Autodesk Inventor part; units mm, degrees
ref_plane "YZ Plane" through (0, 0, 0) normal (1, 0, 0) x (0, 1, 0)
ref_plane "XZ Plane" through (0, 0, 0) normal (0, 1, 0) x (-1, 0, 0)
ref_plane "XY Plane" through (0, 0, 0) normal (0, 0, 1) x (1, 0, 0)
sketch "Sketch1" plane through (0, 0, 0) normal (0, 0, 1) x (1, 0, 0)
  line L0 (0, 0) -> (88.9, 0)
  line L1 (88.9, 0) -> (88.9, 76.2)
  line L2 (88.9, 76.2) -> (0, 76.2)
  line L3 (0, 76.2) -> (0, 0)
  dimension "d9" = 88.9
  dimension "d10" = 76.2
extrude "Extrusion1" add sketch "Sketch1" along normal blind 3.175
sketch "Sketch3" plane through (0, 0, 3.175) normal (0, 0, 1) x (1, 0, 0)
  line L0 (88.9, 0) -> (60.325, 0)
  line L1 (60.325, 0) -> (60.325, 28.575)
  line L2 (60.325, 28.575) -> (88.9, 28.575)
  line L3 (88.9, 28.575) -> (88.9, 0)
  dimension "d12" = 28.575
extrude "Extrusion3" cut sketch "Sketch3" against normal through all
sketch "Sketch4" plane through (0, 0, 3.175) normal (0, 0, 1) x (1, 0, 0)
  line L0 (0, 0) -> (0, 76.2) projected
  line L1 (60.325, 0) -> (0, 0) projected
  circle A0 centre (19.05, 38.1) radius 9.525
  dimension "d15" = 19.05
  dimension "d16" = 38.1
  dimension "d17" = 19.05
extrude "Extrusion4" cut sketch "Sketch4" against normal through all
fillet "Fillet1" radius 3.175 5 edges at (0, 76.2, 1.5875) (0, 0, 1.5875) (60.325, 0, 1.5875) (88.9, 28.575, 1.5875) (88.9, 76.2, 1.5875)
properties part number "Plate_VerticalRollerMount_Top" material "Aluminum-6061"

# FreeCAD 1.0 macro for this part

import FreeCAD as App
import Part
import Sketcher
from FreeCAD import Vector
Q = App.Units.Quantity


def edges_at(feature, points):
    """Names of the edges that pass closest to the given points."""
    edges = feature.Shape.Edges
    near = lambda p: min(range(len(edges)), key=lambda i: edges[i].distToShape(Part.Vertex(*p))[0])
    return sorted({f"Edge{near(p) + 1}" for p in points})

doc = App.newDocument("Part")
params = doc.addObject("Spreadsheet::Sheet", "Params")
for row, (alias, value) in enumerate([
    ("sketch1_height", "3 in"),
    ("sketch1_width", "3.5 in"),
    ("pad1_length", "0.125 in"),
    ("sketch2_width", "1.125 in"),
    ("sketch3_diameter", "0.75 in"),
    ("fillet_radius", "0.125 in"),
], start=1):
    params.set(f"A{row}", alias)
    params.set(f"B{row}", "=" + value)
    params.setAlias(f"B{row}", alias)

body = doc.addObject("PartDesign::Body", "Body")

sketch1 = doc.addObject("Sketcher::SketchObject", "Sketch")
body.addObject(sketch1)
sketch1.AttachmentSupport = (doc.XY_Plane, [""])
sketch1.MapMode = "FlatFace"
sketch1.addGeometry(Part.LineSegment(Vector(0, 76, 0), Vector(0, 0, 0)), False)
sketch1.addGeometry(Part.LineSegment(Vector(0, 0, 0), Vector(89, 0, 0)), False)
sketch1.addGeometry(Part.LineSegment(Vector(89, 0, 0), Vector(89, 76, 0)), False)
sketch1.addGeometry(Part.LineSegment(Vector(89, 76, 0), Vector(0, 76, 0)), False)
sketch1.addConstraint(Sketcher.Constraint("Coincident", 0, 2, 1, 1))
sketch1.addConstraint(Sketcher.Constraint("Coincident", 1, 2, 2, 1))
sketch1.addConstraint(Sketcher.Constraint("Coincident", 2, 2, 3, 1))
sketch1.addConstraint(Sketcher.Constraint("Coincident", 3, 2, 0, 1))
sketch1.addConstraint(Sketcher.Constraint("Vertical", 0))
sketch1.addConstraint(Sketcher.Constraint("Horizontal", 1))
sketch1.addConstraint(Sketcher.Constraint("Vertical", 2))
sketch1.addConstraint(Sketcher.Constraint("Horizontal", 3))
sketch1.addConstraint(Sketcher.Constraint("Coincident", 0, 2, -1, 1))
sketch1.addConstraint(Sketcher.Constraint("DistanceY", 0, 2, 0, 1, Q("3 in")))
sketch1.addConstraint(Sketcher.Constraint("DistanceX", 1, 1, 1, 2, Q("3.5 in")))
sketch1.setExpression("Constraints[9]", "Params.sketch1_height")
sketch1.setExpression("Constraints[10]", "Params.sketch1_width")
pad1 = doc.addObject("PartDesign::Pad", "Pad")
body.addObject(pad1)
pad1.Profile = sketch1
pad1.setExpression("Length", "Params.pad1_length")

sketch2 = doc.addObject("Sketcher::SketchObject", "Sketch001")
body.addObject(sketch2)
sketch2.AttachmentSupport = (doc.XY_Plane, [""])
sketch2.MapMode = "FlatFace"
sketch2.AttachmentOffset = App.Placement(Vector(0, 0, 0.125 * 25.4), App.Rotation())
sketch2.addGeometry(Part.LineSegment(Vector(60, 0, 0), Vector(89, 0, 0)), False)
sketch2.addGeometry(Part.LineSegment(Vector(89, 0, 0), Vector(89, 29, 0)), False)
sketch2.addGeometry(Part.LineSegment(Vector(89, 29, 0), Vector(60, 29, 0)), False)
sketch2.addGeometry(Part.LineSegment(Vector(60, 29, 0), Vector(60, 0, 0)), False)
sketch2.addConstraint(Sketcher.Constraint("Coincident", 0, 2, 1, 1))
sketch2.addConstraint(Sketcher.Constraint("Coincident", 1, 2, 2, 1))
sketch2.addConstraint(Sketcher.Constraint("Coincident", 2, 2, 3, 1))
sketch2.addConstraint(Sketcher.Constraint("Coincident", 3, 2, 0, 1))
sketch2.addConstraint(Sketcher.Constraint("Horizontal", 0))
sketch2.addConstraint(Sketcher.Constraint("Vertical", 1))
sketch2.addConstraint(Sketcher.Constraint("Horizontal", 2))
sketch2.addConstraint(Sketcher.Constraint("Vertical", 3))
sketch2.addConstraint(Sketcher.Constraint("PointOnObject", 0, 2, -1))
sketch2.addConstraint(Sketcher.Constraint("Equal", 2, 1))
sketch2.addConstraint(Sketcher.Constraint("DistanceX", 0, 1, 0, 2, Q("1.125 in")))
sketch2.addConstraint(Sketcher.Constraint("DistanceX", -1, 1, 0, 2, Q("3.5 in")))
sketch2.setExpression("Constraints[10]", "Params.sketch2_width")
pocket1 = doc.addObject("PartDesign::Pocket", "Pocket")
body.addObject(pocket1)
pocket1.Profile = sketch2
pocket1.Type = "ThroughAll"

sketch3 = doc.addObject("Sketcher::SketchObject", "Sketch002")
body.addObject(sketch3)
sketch3.AttachmentSupport = (doc.XY_Plane, [""])
sketch3.MapMode = "FlatFace"
sketch3.AttachmentOffset = App.Placement(Vector(0, 0, 0.125 * 25.4), App.Rotation())
sketch3.addGeometry(Part.Circle(Vector(19, 38, 0), Vector(0, 0, 1), 10), False)
sketch3.addConstraint(Sketcher.Constraint("Diameter", 0, Q("0.75 in")))
sketch3.addConstraint(Sketcher.Constraint("DistanceY", -1, 1, 0, 3, Q("1.5 in")))
sketch3.addConstraint(Sketcher.Constraint("DistanceX", -1, 1, 0, 3, Q("0.75 in")))
sketch3.setExpression("Constraints[0]", "Params.sketch3_diameter")
pocket2 = doc.addObject("PartDesign::Pocket", "Pocket001")
body.addObject(pocket2)
pocket2.Profile = sketch3
pocket2.Type = "ThroughAll"
doc.recompute()

fillet = doc.addObject("PartDesign::Fillet", "Fillet")
body.addObject(fillet)
fillet.Base = (pocket2, edges_at(pocket2, [
    (0, 76.2, 1.587),
    (0, 0, 1.587),
    (60.325, 0, 1.587),
    (88.9, 28.575, 1.587),
    (88.9, 76.2, 1.587),
]))
fillet.setExpression("Radius", "Params.fillet_radius")

doc.recompute()
